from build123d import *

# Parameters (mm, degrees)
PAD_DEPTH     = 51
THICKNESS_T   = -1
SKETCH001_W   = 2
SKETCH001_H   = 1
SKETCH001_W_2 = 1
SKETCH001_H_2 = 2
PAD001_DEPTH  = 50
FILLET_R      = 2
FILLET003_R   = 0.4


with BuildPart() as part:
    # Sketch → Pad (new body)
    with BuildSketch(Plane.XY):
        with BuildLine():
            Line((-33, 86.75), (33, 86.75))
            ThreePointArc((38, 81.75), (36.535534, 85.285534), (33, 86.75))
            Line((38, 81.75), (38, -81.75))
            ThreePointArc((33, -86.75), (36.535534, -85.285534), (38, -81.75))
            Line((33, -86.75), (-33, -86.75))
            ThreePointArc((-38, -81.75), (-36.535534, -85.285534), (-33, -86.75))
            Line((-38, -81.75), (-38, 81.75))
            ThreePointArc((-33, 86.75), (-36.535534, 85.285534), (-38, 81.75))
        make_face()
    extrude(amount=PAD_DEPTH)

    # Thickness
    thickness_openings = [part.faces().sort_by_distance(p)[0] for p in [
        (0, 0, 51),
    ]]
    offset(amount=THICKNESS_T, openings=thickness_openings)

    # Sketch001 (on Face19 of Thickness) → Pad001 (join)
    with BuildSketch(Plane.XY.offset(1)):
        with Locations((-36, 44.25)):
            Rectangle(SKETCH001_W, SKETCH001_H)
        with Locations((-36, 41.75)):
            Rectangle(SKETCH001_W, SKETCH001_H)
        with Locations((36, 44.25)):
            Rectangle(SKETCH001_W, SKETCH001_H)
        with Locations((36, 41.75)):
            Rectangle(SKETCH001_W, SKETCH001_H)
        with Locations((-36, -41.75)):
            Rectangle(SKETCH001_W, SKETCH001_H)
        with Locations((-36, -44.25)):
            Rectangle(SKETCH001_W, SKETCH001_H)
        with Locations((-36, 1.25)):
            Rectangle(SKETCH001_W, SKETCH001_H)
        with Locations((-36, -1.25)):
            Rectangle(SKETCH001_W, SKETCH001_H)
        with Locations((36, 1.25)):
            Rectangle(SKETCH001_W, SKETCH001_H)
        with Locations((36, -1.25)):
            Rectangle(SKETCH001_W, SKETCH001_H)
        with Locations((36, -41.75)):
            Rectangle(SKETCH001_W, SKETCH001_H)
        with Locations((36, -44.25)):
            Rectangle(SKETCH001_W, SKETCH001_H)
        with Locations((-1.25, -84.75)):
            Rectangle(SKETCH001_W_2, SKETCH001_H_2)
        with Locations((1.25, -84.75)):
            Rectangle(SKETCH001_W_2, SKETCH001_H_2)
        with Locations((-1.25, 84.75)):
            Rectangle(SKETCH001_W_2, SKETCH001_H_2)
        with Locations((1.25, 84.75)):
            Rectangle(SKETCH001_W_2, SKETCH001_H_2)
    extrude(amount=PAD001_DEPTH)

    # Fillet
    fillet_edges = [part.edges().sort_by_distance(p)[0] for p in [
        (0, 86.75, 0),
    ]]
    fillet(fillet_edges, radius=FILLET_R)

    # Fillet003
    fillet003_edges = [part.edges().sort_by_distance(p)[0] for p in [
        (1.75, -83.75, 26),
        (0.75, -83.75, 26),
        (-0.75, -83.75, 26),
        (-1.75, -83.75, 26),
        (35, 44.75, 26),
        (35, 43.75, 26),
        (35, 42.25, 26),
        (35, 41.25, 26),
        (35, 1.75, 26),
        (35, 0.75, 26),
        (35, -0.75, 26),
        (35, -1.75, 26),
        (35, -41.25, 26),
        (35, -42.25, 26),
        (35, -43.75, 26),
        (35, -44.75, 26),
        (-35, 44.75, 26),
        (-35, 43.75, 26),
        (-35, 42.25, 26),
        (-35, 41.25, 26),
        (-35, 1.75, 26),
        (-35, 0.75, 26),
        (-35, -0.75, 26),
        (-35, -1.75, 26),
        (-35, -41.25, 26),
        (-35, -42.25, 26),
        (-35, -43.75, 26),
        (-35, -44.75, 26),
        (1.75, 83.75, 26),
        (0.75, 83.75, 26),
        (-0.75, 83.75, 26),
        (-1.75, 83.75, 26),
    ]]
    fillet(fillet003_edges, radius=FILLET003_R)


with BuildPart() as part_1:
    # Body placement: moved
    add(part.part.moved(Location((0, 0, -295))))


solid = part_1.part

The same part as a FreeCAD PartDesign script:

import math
import FreeCAD as App
import Part
import Sketcher


def edges_at(feature, points):
    """Names of the edges that pass closest to the given points."""
    edges = feature.Shape.Edges
    near = lambda p: min(range(len(edges)), key=lambda i: edges[i].distToShape(Part.Vertex(*p))[0])
    return sorted({f"Edge{near(p) + 1}" for p in points})


def faces_at(feature, points):
    """Names of the faces that lie closest to the given points."""
    faces = feature.Shape.Faces
    near = lambda p: min(range(len(faces)), key=lambda i: faces[i].distToShape(Part.Vertex(*p))[0])
    return sorted({f"Face{near(p) + 1}" for p in points})


def add_polygon(sketch, points):
    """Adds a closed chain of lines whose ends are joined by coincident constraints."""
    first, n = sketch.GeometryCount, len(points)
    for a, b in zip(points, points[1:] + points[:1]):
        sketch.addGeometry(Part.LineSegment(App.Vector(*a, 0), App.Vector(*b, 0)), False)
    for i in range(n):
        sketch.addConstraint(Sketcher.Constraint("Coincident", first + i, 2, first + (i + 1) % n, 1))

doc = App.newDocument("Part")
params = doc.addObject("Spreadsheet::Sheet", "Params")
for row, (alias, value) in enumerate([
    ("sketch1_radius", "5 mm"),
    ("sketch1_width", "66 mm"),
    ("sketch1_height", "163.5 mm"),
    ("pad1_length", "51 mm"),
    ("thickness_wall", "1 mm"),
    ("sketch2_width", "2 mm"),
    ("sketch2_width2", "1 mm"),
    ("pad2_length", "50 mm"),
    ("fillet_radius", "2 mm"),
    ("fillet2_radius", "0.4 mm"),
], start=1):
    params.set(f"A{row}", alias)
    params.set(f"B{row}", "=" + value)
    params.setAlias(f"B{row}", alias)

body = doc.addObject("PartDesign::Body", "Body")

# Sketch on XY plane
sketch1 = doc.addObject("Sketcher::SketchObject", "Sketch")
body.addObject(sketch1)
sketch1.AttachmentSupport = (doc.XY_Plane, [""])
sketch1.MapMode = "FlatFace"
sketch1.addGeometry(Part.LineSegment(App.Vector(33, 86.8, 0), App.Vector(-33, 86.8, 0)), False)
sketch1.addGeometry(Part.ArcOfCircle(Part.Circle(App.Vector(-33, 81.8, 0), App.Vector(0, 0, 1), 5), math.radians(90), math.radians(180)), False)
sketch1.addGeometry(Part.LineSegment(App.Vector(-38, 81.8, 0), App.Vector(-38, -81.8, 0)), False)
sketch1.addGeometry(Part.ArcOfCircle(Part.Circle(App.Vector(-33, -81.8, 0), App.Vector(0, 0, 1), 5), math.radians(180), math.radians(270)), False)
sketch1.addGeometry(Part.LineSegment(App.Vector(-33, -86.8, 0), App.Vector(33, -86.8, 0)), False)
sketch1.addGeometry(Part.ArcOfCircle(Part.Circle(App.Vector(33, -81.8, 0), App.Vector(0, 0, 1), 5), math.radians(-90), math.radians(0)), False)
sketch1.addGeometry(Part.LineSegment(App.Vector(38, -81.8, 0), App.Vector(38, 81.8, 0)), False)
sketch1.addGeometry(Part.ArcOfCircle(Part.Circle(App.Vector(33, 81.8, 0), App.Vector(0, 0, 1), 5), math.radians(0), math.radians(90)), False)
sketch1.addConstraint(Sketcher.Constraint("Tangent", 0, 2, 1, 1))
sketch1.addConstraint(Sketcher.Constraint("Tangent", 1, 2, 2, 1))
sketch1.addConstraint(Sketcher.Constraint("Tangent", 2, 2, 3, 1))
sketch1.addConstraint(Sketcher.Constraint("Tangent", 3, 2, 4, 1))
sketch1.addConstraint(Sketcher.Constraint("Tangent", 4, 2, 5, 1))
sketch1.addConstraint(Sketcher.Constraint("Tangent", 5, 2, 6, 1))
sketch1.addConstraint(Sketcher.Constraint("Tangent", 6, 2, 7, 1))
sketch1.addConstraint(Sketcher.Constraint("Tangent", 7, 2, 0, 1))
sketch1.addConstraint(Sketcher.Constraint("Horizontal", 0))
sketch1.addConstraint(Sketcher.Constraint("Vertical", 2))
sketch1.addConstraint(Sketcher.Constraint("Horizontal", 4))
sketch1.addConstraint(Sketcher.Constraint("Vertical", 6))
sketch1.addConstraint(Sketcher.Constraint("Equal", 1, 3))
sketch1.addConstraint(Sketcher.Constraint("Equal", 3, 5))
sketch1.addConstraint(Sketcher.Constraint("Equal", 5, 7))
sketch1.addConstraint(Sketcher.Constraint("Symmetric", 1, 3, 5, 3, -1, 1))
sketch1.addConstraint(Sketcher.Constraint("Radius", 1, 5.0))
sketch1.addConstraint(Sketcher.Constraint("DistanceX", 0, 2, 0, 1, 66.0))
sketch1.addConstraint(Sketcher.Constraint("DistanceY", 2, 2, 2, 1, 163.5))
sketch1.setExpression("Constraints[16]", "Params.sketch1_radius")
sketch1.setExpression("Constraints[17]", "Params.sketch1_width")
sketch1.setExpression("Constraints[18]", "Params.sketch1_height")
pad1 = doc.addObject("PartDesign::Pad", "Pad")
body.addObject(pad1)
pad1.Profile = sketch1
pad1.setExpression("Length", "Params.pad1_length")
doc.recompute()

thickness = doc.addObject("PartDesign::Thickness", "Thickness")
body.addObject(thickness)
thickness.Base = (pad1, faces_at(pad1, [(0, 0, 51)]))
thickness.setExpression("Value", "Params.thickness_wall")
thickness.Reversed = True
thickness.Join = "Arc"

# Sketch on XY plane
sketch2 = doc.addObject("Sketcher::SketchObject", "Sketch001")
body.addObject(sketch2)
sketch2.AttachmentSupport = (doc.XY_Plane, [""])
sketch2.MapMode = "FlatFace"
sketch2.AttachmentOffset = App.Placement(App.Vector(0, 0, 1), App.Rotation())
add_polygon(sketch2, [(-37, 44.8), (-37, 43.8), (-35, 43.8), (-35, 44.8)])  # lines 0-3
add_polygon(sketch2, [(-37, 42.2), (-37, 41.2), (-35, 41.2), (-35, 42.2)])  # lines 4-7
add_polygon(sketch2, [(35, 44.8), (35, 43.8), (37, 43.8), (37, 44.8)])  # lines 8-11
add_polygon(sketch2, [(35, 42.2), (35, 41.2), (37, 41.2), (37, 42.2)])  # lines 12-15
add_polygon(sketch2, [(-37, -41.2), (-37, -42.2), (-35, -42.2), (-35, -41.2)])  # lines 16-19
add_polygon(sketch2, [(-37, -43.8), (-37, -44.8), (-35, -44.8), (-35, -43.8)])  # lines 20-23
add_polygon(sketch2, [(-37, 1.8), (-37, 0.8), (-35, 0.8), (-35, 1.8)])  # lines 24-27
add_polygon(sketch2, [(-37, -0.8), (-37, -1.8), (-35, -1.8), (-35, -0.8)])  # lines 28-31
add_polygon(sketch2, [(35, 1.8), (35, 0.8), (37, 0.8), (37, 1.8)])  # lines 32-35
add_polygon(sketch2, [(35, -0.8), (35, -1.8), (37, -1.8), (37, -0.8)])  # lines 36-39
add_polygon(sketch2, [(35, -41.2), (35, -42.2), (37, -42.2), (37, -41.2)])  # lines 40-43
add_polygon(sketch2, [(35, -43.8), (35, -44.8), (37, -44.8), (37, -43.8)])  # lines 44-47
add_polygon(sketch2, [(-1.8, -83.8), (-1.8, -85.8), (-0.8, -85.8), (-0.8, -83.8)])  # lines 48-51
add_polygon(sketch2, [(0.8, -83.8), (0.8, -85.8), (1.8, -85.8), (1.8, -83.8)])  # lines 52-55
add_polygon(sketch2, [(-1.8, 85.8), (-1.8, 83.8), (-0.8, 83.8), (-0.8, 85.8)])  # lines 56-59
add_polygon(sketch2, [(0.8, 85.8), (0.8, 83.8), (1.8, 83.8), (1.8, 85.8)])  # lines 60-63
sketch2.addConstraint(Sketcher.Constraint("Vertical", 0))
sketch2.addConstraint(Sketcher.Constraint("Horizontal", 1))
sketch2.addConstraint(Sketcher.Constraint("Vertical", 2))
sketch2.addConstraint(Sketcher.Constraint("Horizontal", 3))
sketch2.addConstraint(Sketcher.Constraint("Vertical", 4))
sketch2.addConstraint(Sketcher.Constraint("Horizontal", 5))
sketch2.addConstraint(Sketcher.Constraint("Vertical", 6))
sketch2.addConstraint(Sketcher.Constraint("Horizontal", 7))
sketch2.addConstraint(Sketcher.Constraint("Vertical", 8))
sketch2.addConstraint(Sketcher.Constraint("Horizontal", 9))
sketch2.addConstraint(Sketcher.Constraint("Vertical", 10))
sketch2.addConstraint(Sketcher.Constraint("Horizontal", 11))
sketch2.addConstraint(Sketcher.Constraint("Vertical", 12))
sketch2.addConstraint(Sketcher.Constraint("Horizontal", 13))
sketch2.addConstraint(Sketcher.Constraint("Vertical", 14))
sketch2.addConstraint(Sketcher.Constraint("Horizontal", 15))
sketch2.addConstraint(Sketcher.Constraint("Vertical", 16))
sketch2.addConstraint(Sketcher.Constraint("Horizontal", 17))
sketch2.addConstraint(Sketcher.Constraint("Vertical", 18))
sketch2.addConstraint(Sketcher.Constraint("Horizontal", 19))
sketch2.addConstraint(Sketcher.Constraint("Vertical", 20))
sketch2.addConstraint(Sketcher.Constraint("Horizontal", 21))
sketch2.addConstraint(Sketcher.Constraint("Vertical", 22))
sketch2.addConstraint(Sketcher.Constraint("Horizontal", 23))
sketch2.addConstraint(Sketcher.Constraint("Vertical", 24))
sketch2.addConstraint(Sketcher.Constraint("Horizontal", 25))
sketch2.addConstraint(Sketcher.Constraint("Vertical", 26))
sketch2.addConstraint(Sketcher.Constraint("Horizontal", 27))
sketch2.addConstraint(Sketcher.Constraint("Vertical", 28))
sketch2.addConstraint(Sketcher.Constraint("Horizontal", 29))
sketch2.addConstraint(Sketcher.Constraint("Vertical", 30))
sketch2.addConstraint(Sketcher.Constraint("Horizontal", 31))
sketch2.addConstraint(Sketcher.Constraint("Vertical", 32))
sketch2.addConstraint(Sketcher.Constraint("Horizontal", 33))
sketch2.addConstraint(Sketcher.Constraint("Vertical", 34))
sketch2.addConstraint(Sketcher.Constraint("Horizontal", 35))
sketch2.addConstraint(Sketcher.Constraint("Vertical", 36))
sketch2.addConstraint(Sketcher.Constraint("Horizontal", 37))
sketch2.addConstraint(Sketcher.Constraint("Vertical", 38))
sketch2.addConstraint(Sketcher.Constraint("Horizontal", 39))
sketch2.addConstraint(Sketcher.Constraint("Vertical", 40))
sketch2.addConstraint(Sketcher.Constraint("Horizontal", 41))
sketch2.addConstraint(Sketcher.Constraint("Vertical", 42))
sketch2.addConstraint(Sketcher.Constraint("Horizontal", 43))
sketch2.addConstraint(Sketcher.Constraint("Vertical", 44))
sketch2.addConstraint(Sketcher.Constraint("Horizontal", 45))
sketch2.addConstraint(Sketcher.Constraint("Vertical", 46))
sketch2.addConstraint(Sketcher.Constraint("Horizontal", 47))
sketch2.addConstraint(Sketcher.Constraint("Vertical", 48))
sketch2.addConstraint(Sketcher.Constraint("Horizontal", 49))
sketch2.addConstraint(Sketcher.Constraint("Vertical", 50))
sketch2.addConstraint(Sketcher.Constraint("Horizontal", 51))
sketch2.addConstraint(Sketcher.Constraint("Vertical", 52))
sketch2.addConstraint(Sketcher.Constraint("Horizontal", 53))
sketch2.addConstraint(Sketcher.Constraint("Vertical", 54))
sketch2.addConstraint(Sketcher.Constraint("Horizontal", 55))
sketch2.addConstraint(Sketcher.Constraint("Vertical", 56))
sketch2.addConstraint(Sketcher.Constraint("Horizontal", 57))
sketch2.addConstraint(Sketcher.Constraint("Vertical", 58))
sketch2.addConstraint(Sketcher.Constraint("Horizontal", 59))
sketch2.addConstraint(Sketcher.Constraint("Vertical", 60))
sketch2.addConstraint(Sketcher.Constraint("Horizontal", 61))
sketch2.addConstraint(Sketcher.Constraint("Vertical", 62))
sketch2.addConstraint(Sketcher.Constraint("Horizontal", 63))
sketch2.addConstraint(Sketcher.Constraint("Symmetric", 14, 2, 16, 2, -1, 1))
sketch2.addConstraint(Sketcher.Constraint("Symmetric", 12, 2, 18, 2, -1, 1))
sketch2.addConstraint(Sketcher.Constraint("Symmetric", 10, 2, 20, 2, -1, 1))
sketch2.addConstraint(Sketcher.Constraint("Symmetric", 8, 2, 22, 2, -1, 1))
sketch2.addConstraint(Sketcher.Constraint("Symmetric", 30, 2, 32, 2, -1, 1))
sketch2.addConstraint(Sketcher.Constraint("Symmetric", 28, 2, 34, 2, -1, 1))
sketch2.addConstraint(Sketcher.Constraint("Symmetric", 26, 2, 36, 2, -1, 1))
sketch2.addConstraint(Sketcher.Constraint("Symmetric", 24, 2, 38, 2, -1, 1))
sketch2.addConstraint(Sketcher.Constraint("Symmetric", 6, 2, 40, 2, -1, 1))
sketch2.addConstraint(Sketcher.Constraint("Symmetric", 4, 2, 42, 2, -1, 1))
sketch2.addConstraint(Sketcher.Constraint("Symmetric", 2, 2, 44, 2, -1, 1))
sketch2.addConstraint(Sketcher.Constraint("Symmetric", 0, 2, 46, 2, -1, 1))
sketch2.addConstraint(Sketcher.Constraint("Symmetric", 54, 2, 56, 2, -1, 1))
sketch2.addConstraint(Sketcher.Constraint("Symmetric", 52, 2, 58, 2, -1, 1))
sketch2.addConstraint(Sketcher.Constraint("Symmetric", 50, 2, 60, 2, -1, 1))
sketch2.addConstraint(Sketcher.Constraint("Symmetric", 48, 2, 62, 2, -1, 1))
sketch2.addConstraint(Sketcher.Constraint("Symmetric", 1, 2, 8, 2, -2))
sketch2.addConstraint(Sketcher.Constraint("Symmetric", 3, 2, 10, 2, -2))
sketch2.addConstraint(Sketcher.Constraint("Symmetric", 5, 2, 12, 2, -2))
sketch2.addConstraint(Sketcher.Constraint("Symmetric", 7, 2, 14, 2, -2))
sketch2.addConstraint(Sketcher.Constraint("Symmetric", 25, 2, 32, 2, -2))
sketch2.addConstraint(Sketcher.Constraint("Symmetric", 27, 2, 34, 2, -2))
sketch2.addConstraint(Sketcher.Constraint("Symmetric", 49, 2, 52, 2, -2))
sketch2.addConstraint(Sketcher.Constraint("Symmetric", 51, 2, 54, 2, -2))
sketch2.addConstraint(Sketcher.Constraint("Vertical", 3, 2, 4, 2))
sketch2.addConstraint(Sketcher.Constraint("Vertical", 2, 2, 5, 2))
sketch2.addConstraint(Sketcher.Constraint("Vertical", 23, 2, 24, 2))
sketch2.addConstraint(Sketcher.Constraint("Vertical", 22, 2, 25, 2))
sketch2.addConstraint(Sketcher.Constraint("Equal", 63, 0))
sketch2.addConstraint(Sketcher.Constraint("Equal", 2, 4))
sketch2.addConstraint(Sketcher.Constraint("Equal", 22, 24))
sketch2.addConstraint(Sketcher.Constraint("Equal", 47, 48))
sketch2.addConstraint(Sketcher.Constraint("DistanceX", 1, 1, 1, 2, 2.0))
sketch2.addConstraint(Sketcher.Constraint("DistanceX", 49, 1, 49, 2, 1.0))
sketch2.addConstraint(Sketcher.Constraint("DistanceX", 0, 2, -1, 1, 37.0))
sketch2.addConstraint(Sketcher.Constraint("DistanceY", -1, 1, 0, 2, 43.75))
sketch2.addConstraint(Sketcher.Constraint("DistanceY", -1, 1, 4, 2, 41.25))
sketch2.addConstraint(Sketcher.Constraint("DistanceY", -1, 1, 24, 2, 0.75))
sketch2.addConstraint(Sketcher.Constraint("DistanceX", 48, 2, -1, 1, 1.75))
sketch2.addConstraint(Sketcher.Constraint("DistanceY", 48, 2, -1, 1, 85.75))
sketch2.setExpression("Constraints[160]", "Params.sketch2_width")
sketch2.setExpression("Constraints[161]", "Params.sketch2_width2")
pad2 = doc.addObject("PartDesign::Pad", "Pad001")
body.addObject(pad2)
pad2.Profile = sketch2
pad2.setExpression("Length", "Params.pad2_length")
doc.recompute()

fillet = doc.addObject("PartDesign::Fillet", "Fillet")
body.addObject(fillet)
fillet.Base = (pad2, edges_at(pad2, [(0, 86.75, 0)]))
fillet.setExpression("Radius", "Params.fillet_radius")
doc.recompute()

fillet2 = doc.addObject("PartDesign::Fillet", "Fillet001")
body.addObject(fillet2)
fillet2.Base = (fillet, edges_at(fillet, [
    (1.75, -83.75, 26),
    (0.75, -83.75, 26),
    (-0.75, -83.75, 26),
    (-1.75, -83.75, 26),
    (35, 44.75, 26),
    (35, 43.75, 26),
    (35, 42.25, 26),
    (35, 41.25, 26),
    (35, 1.75, 26),
    (35, 0.75, 26),
    (35, -0.75, 26),
    (35, -1.75, 26),
    (35, -41.25, 26),
    (35, -42.25, 26),
    (35, -43.75, 26),
    (35, -44.75, 26),
    (-35, 44.75, 26),
    (-35, 43.75, 26),
    (-35, 42.25, 26),
    (-35, 41.25, 26),
    (-35, 1.75, 26),
    (-35, 0.75, 26),
    (-35, -0.75, 26),
    (-35, -1.75, 26),
    (-35, -41.25, 26),
    (-35, -42.25, 26),
    (-35, -43.75, 26),
    (-35, -44.75, 26),
    (1.75, 83.75, 26),
    (0.75, 83.75, 26),
    (-0.75, 83.75, 26),
    (-1.75, 83.75, 26),
]))
fillet2.setExpression("Radius", "Params.fillet2_radius")
body2 = doc.addObject("PartDesign::Body", "Body001")
doc.recompute()

body.Placement = App.Placement(App.Vector(0, 0, -295), App.Rotation(App.Vector(0, 0, 1), 0))
boolean = doc.addObject("PartDesign::Boolean", "Boolean")
body2.addObject(boolean)
boolean.Type = "Fuse"
boolean.addObjects([body])

doc.recompute()
